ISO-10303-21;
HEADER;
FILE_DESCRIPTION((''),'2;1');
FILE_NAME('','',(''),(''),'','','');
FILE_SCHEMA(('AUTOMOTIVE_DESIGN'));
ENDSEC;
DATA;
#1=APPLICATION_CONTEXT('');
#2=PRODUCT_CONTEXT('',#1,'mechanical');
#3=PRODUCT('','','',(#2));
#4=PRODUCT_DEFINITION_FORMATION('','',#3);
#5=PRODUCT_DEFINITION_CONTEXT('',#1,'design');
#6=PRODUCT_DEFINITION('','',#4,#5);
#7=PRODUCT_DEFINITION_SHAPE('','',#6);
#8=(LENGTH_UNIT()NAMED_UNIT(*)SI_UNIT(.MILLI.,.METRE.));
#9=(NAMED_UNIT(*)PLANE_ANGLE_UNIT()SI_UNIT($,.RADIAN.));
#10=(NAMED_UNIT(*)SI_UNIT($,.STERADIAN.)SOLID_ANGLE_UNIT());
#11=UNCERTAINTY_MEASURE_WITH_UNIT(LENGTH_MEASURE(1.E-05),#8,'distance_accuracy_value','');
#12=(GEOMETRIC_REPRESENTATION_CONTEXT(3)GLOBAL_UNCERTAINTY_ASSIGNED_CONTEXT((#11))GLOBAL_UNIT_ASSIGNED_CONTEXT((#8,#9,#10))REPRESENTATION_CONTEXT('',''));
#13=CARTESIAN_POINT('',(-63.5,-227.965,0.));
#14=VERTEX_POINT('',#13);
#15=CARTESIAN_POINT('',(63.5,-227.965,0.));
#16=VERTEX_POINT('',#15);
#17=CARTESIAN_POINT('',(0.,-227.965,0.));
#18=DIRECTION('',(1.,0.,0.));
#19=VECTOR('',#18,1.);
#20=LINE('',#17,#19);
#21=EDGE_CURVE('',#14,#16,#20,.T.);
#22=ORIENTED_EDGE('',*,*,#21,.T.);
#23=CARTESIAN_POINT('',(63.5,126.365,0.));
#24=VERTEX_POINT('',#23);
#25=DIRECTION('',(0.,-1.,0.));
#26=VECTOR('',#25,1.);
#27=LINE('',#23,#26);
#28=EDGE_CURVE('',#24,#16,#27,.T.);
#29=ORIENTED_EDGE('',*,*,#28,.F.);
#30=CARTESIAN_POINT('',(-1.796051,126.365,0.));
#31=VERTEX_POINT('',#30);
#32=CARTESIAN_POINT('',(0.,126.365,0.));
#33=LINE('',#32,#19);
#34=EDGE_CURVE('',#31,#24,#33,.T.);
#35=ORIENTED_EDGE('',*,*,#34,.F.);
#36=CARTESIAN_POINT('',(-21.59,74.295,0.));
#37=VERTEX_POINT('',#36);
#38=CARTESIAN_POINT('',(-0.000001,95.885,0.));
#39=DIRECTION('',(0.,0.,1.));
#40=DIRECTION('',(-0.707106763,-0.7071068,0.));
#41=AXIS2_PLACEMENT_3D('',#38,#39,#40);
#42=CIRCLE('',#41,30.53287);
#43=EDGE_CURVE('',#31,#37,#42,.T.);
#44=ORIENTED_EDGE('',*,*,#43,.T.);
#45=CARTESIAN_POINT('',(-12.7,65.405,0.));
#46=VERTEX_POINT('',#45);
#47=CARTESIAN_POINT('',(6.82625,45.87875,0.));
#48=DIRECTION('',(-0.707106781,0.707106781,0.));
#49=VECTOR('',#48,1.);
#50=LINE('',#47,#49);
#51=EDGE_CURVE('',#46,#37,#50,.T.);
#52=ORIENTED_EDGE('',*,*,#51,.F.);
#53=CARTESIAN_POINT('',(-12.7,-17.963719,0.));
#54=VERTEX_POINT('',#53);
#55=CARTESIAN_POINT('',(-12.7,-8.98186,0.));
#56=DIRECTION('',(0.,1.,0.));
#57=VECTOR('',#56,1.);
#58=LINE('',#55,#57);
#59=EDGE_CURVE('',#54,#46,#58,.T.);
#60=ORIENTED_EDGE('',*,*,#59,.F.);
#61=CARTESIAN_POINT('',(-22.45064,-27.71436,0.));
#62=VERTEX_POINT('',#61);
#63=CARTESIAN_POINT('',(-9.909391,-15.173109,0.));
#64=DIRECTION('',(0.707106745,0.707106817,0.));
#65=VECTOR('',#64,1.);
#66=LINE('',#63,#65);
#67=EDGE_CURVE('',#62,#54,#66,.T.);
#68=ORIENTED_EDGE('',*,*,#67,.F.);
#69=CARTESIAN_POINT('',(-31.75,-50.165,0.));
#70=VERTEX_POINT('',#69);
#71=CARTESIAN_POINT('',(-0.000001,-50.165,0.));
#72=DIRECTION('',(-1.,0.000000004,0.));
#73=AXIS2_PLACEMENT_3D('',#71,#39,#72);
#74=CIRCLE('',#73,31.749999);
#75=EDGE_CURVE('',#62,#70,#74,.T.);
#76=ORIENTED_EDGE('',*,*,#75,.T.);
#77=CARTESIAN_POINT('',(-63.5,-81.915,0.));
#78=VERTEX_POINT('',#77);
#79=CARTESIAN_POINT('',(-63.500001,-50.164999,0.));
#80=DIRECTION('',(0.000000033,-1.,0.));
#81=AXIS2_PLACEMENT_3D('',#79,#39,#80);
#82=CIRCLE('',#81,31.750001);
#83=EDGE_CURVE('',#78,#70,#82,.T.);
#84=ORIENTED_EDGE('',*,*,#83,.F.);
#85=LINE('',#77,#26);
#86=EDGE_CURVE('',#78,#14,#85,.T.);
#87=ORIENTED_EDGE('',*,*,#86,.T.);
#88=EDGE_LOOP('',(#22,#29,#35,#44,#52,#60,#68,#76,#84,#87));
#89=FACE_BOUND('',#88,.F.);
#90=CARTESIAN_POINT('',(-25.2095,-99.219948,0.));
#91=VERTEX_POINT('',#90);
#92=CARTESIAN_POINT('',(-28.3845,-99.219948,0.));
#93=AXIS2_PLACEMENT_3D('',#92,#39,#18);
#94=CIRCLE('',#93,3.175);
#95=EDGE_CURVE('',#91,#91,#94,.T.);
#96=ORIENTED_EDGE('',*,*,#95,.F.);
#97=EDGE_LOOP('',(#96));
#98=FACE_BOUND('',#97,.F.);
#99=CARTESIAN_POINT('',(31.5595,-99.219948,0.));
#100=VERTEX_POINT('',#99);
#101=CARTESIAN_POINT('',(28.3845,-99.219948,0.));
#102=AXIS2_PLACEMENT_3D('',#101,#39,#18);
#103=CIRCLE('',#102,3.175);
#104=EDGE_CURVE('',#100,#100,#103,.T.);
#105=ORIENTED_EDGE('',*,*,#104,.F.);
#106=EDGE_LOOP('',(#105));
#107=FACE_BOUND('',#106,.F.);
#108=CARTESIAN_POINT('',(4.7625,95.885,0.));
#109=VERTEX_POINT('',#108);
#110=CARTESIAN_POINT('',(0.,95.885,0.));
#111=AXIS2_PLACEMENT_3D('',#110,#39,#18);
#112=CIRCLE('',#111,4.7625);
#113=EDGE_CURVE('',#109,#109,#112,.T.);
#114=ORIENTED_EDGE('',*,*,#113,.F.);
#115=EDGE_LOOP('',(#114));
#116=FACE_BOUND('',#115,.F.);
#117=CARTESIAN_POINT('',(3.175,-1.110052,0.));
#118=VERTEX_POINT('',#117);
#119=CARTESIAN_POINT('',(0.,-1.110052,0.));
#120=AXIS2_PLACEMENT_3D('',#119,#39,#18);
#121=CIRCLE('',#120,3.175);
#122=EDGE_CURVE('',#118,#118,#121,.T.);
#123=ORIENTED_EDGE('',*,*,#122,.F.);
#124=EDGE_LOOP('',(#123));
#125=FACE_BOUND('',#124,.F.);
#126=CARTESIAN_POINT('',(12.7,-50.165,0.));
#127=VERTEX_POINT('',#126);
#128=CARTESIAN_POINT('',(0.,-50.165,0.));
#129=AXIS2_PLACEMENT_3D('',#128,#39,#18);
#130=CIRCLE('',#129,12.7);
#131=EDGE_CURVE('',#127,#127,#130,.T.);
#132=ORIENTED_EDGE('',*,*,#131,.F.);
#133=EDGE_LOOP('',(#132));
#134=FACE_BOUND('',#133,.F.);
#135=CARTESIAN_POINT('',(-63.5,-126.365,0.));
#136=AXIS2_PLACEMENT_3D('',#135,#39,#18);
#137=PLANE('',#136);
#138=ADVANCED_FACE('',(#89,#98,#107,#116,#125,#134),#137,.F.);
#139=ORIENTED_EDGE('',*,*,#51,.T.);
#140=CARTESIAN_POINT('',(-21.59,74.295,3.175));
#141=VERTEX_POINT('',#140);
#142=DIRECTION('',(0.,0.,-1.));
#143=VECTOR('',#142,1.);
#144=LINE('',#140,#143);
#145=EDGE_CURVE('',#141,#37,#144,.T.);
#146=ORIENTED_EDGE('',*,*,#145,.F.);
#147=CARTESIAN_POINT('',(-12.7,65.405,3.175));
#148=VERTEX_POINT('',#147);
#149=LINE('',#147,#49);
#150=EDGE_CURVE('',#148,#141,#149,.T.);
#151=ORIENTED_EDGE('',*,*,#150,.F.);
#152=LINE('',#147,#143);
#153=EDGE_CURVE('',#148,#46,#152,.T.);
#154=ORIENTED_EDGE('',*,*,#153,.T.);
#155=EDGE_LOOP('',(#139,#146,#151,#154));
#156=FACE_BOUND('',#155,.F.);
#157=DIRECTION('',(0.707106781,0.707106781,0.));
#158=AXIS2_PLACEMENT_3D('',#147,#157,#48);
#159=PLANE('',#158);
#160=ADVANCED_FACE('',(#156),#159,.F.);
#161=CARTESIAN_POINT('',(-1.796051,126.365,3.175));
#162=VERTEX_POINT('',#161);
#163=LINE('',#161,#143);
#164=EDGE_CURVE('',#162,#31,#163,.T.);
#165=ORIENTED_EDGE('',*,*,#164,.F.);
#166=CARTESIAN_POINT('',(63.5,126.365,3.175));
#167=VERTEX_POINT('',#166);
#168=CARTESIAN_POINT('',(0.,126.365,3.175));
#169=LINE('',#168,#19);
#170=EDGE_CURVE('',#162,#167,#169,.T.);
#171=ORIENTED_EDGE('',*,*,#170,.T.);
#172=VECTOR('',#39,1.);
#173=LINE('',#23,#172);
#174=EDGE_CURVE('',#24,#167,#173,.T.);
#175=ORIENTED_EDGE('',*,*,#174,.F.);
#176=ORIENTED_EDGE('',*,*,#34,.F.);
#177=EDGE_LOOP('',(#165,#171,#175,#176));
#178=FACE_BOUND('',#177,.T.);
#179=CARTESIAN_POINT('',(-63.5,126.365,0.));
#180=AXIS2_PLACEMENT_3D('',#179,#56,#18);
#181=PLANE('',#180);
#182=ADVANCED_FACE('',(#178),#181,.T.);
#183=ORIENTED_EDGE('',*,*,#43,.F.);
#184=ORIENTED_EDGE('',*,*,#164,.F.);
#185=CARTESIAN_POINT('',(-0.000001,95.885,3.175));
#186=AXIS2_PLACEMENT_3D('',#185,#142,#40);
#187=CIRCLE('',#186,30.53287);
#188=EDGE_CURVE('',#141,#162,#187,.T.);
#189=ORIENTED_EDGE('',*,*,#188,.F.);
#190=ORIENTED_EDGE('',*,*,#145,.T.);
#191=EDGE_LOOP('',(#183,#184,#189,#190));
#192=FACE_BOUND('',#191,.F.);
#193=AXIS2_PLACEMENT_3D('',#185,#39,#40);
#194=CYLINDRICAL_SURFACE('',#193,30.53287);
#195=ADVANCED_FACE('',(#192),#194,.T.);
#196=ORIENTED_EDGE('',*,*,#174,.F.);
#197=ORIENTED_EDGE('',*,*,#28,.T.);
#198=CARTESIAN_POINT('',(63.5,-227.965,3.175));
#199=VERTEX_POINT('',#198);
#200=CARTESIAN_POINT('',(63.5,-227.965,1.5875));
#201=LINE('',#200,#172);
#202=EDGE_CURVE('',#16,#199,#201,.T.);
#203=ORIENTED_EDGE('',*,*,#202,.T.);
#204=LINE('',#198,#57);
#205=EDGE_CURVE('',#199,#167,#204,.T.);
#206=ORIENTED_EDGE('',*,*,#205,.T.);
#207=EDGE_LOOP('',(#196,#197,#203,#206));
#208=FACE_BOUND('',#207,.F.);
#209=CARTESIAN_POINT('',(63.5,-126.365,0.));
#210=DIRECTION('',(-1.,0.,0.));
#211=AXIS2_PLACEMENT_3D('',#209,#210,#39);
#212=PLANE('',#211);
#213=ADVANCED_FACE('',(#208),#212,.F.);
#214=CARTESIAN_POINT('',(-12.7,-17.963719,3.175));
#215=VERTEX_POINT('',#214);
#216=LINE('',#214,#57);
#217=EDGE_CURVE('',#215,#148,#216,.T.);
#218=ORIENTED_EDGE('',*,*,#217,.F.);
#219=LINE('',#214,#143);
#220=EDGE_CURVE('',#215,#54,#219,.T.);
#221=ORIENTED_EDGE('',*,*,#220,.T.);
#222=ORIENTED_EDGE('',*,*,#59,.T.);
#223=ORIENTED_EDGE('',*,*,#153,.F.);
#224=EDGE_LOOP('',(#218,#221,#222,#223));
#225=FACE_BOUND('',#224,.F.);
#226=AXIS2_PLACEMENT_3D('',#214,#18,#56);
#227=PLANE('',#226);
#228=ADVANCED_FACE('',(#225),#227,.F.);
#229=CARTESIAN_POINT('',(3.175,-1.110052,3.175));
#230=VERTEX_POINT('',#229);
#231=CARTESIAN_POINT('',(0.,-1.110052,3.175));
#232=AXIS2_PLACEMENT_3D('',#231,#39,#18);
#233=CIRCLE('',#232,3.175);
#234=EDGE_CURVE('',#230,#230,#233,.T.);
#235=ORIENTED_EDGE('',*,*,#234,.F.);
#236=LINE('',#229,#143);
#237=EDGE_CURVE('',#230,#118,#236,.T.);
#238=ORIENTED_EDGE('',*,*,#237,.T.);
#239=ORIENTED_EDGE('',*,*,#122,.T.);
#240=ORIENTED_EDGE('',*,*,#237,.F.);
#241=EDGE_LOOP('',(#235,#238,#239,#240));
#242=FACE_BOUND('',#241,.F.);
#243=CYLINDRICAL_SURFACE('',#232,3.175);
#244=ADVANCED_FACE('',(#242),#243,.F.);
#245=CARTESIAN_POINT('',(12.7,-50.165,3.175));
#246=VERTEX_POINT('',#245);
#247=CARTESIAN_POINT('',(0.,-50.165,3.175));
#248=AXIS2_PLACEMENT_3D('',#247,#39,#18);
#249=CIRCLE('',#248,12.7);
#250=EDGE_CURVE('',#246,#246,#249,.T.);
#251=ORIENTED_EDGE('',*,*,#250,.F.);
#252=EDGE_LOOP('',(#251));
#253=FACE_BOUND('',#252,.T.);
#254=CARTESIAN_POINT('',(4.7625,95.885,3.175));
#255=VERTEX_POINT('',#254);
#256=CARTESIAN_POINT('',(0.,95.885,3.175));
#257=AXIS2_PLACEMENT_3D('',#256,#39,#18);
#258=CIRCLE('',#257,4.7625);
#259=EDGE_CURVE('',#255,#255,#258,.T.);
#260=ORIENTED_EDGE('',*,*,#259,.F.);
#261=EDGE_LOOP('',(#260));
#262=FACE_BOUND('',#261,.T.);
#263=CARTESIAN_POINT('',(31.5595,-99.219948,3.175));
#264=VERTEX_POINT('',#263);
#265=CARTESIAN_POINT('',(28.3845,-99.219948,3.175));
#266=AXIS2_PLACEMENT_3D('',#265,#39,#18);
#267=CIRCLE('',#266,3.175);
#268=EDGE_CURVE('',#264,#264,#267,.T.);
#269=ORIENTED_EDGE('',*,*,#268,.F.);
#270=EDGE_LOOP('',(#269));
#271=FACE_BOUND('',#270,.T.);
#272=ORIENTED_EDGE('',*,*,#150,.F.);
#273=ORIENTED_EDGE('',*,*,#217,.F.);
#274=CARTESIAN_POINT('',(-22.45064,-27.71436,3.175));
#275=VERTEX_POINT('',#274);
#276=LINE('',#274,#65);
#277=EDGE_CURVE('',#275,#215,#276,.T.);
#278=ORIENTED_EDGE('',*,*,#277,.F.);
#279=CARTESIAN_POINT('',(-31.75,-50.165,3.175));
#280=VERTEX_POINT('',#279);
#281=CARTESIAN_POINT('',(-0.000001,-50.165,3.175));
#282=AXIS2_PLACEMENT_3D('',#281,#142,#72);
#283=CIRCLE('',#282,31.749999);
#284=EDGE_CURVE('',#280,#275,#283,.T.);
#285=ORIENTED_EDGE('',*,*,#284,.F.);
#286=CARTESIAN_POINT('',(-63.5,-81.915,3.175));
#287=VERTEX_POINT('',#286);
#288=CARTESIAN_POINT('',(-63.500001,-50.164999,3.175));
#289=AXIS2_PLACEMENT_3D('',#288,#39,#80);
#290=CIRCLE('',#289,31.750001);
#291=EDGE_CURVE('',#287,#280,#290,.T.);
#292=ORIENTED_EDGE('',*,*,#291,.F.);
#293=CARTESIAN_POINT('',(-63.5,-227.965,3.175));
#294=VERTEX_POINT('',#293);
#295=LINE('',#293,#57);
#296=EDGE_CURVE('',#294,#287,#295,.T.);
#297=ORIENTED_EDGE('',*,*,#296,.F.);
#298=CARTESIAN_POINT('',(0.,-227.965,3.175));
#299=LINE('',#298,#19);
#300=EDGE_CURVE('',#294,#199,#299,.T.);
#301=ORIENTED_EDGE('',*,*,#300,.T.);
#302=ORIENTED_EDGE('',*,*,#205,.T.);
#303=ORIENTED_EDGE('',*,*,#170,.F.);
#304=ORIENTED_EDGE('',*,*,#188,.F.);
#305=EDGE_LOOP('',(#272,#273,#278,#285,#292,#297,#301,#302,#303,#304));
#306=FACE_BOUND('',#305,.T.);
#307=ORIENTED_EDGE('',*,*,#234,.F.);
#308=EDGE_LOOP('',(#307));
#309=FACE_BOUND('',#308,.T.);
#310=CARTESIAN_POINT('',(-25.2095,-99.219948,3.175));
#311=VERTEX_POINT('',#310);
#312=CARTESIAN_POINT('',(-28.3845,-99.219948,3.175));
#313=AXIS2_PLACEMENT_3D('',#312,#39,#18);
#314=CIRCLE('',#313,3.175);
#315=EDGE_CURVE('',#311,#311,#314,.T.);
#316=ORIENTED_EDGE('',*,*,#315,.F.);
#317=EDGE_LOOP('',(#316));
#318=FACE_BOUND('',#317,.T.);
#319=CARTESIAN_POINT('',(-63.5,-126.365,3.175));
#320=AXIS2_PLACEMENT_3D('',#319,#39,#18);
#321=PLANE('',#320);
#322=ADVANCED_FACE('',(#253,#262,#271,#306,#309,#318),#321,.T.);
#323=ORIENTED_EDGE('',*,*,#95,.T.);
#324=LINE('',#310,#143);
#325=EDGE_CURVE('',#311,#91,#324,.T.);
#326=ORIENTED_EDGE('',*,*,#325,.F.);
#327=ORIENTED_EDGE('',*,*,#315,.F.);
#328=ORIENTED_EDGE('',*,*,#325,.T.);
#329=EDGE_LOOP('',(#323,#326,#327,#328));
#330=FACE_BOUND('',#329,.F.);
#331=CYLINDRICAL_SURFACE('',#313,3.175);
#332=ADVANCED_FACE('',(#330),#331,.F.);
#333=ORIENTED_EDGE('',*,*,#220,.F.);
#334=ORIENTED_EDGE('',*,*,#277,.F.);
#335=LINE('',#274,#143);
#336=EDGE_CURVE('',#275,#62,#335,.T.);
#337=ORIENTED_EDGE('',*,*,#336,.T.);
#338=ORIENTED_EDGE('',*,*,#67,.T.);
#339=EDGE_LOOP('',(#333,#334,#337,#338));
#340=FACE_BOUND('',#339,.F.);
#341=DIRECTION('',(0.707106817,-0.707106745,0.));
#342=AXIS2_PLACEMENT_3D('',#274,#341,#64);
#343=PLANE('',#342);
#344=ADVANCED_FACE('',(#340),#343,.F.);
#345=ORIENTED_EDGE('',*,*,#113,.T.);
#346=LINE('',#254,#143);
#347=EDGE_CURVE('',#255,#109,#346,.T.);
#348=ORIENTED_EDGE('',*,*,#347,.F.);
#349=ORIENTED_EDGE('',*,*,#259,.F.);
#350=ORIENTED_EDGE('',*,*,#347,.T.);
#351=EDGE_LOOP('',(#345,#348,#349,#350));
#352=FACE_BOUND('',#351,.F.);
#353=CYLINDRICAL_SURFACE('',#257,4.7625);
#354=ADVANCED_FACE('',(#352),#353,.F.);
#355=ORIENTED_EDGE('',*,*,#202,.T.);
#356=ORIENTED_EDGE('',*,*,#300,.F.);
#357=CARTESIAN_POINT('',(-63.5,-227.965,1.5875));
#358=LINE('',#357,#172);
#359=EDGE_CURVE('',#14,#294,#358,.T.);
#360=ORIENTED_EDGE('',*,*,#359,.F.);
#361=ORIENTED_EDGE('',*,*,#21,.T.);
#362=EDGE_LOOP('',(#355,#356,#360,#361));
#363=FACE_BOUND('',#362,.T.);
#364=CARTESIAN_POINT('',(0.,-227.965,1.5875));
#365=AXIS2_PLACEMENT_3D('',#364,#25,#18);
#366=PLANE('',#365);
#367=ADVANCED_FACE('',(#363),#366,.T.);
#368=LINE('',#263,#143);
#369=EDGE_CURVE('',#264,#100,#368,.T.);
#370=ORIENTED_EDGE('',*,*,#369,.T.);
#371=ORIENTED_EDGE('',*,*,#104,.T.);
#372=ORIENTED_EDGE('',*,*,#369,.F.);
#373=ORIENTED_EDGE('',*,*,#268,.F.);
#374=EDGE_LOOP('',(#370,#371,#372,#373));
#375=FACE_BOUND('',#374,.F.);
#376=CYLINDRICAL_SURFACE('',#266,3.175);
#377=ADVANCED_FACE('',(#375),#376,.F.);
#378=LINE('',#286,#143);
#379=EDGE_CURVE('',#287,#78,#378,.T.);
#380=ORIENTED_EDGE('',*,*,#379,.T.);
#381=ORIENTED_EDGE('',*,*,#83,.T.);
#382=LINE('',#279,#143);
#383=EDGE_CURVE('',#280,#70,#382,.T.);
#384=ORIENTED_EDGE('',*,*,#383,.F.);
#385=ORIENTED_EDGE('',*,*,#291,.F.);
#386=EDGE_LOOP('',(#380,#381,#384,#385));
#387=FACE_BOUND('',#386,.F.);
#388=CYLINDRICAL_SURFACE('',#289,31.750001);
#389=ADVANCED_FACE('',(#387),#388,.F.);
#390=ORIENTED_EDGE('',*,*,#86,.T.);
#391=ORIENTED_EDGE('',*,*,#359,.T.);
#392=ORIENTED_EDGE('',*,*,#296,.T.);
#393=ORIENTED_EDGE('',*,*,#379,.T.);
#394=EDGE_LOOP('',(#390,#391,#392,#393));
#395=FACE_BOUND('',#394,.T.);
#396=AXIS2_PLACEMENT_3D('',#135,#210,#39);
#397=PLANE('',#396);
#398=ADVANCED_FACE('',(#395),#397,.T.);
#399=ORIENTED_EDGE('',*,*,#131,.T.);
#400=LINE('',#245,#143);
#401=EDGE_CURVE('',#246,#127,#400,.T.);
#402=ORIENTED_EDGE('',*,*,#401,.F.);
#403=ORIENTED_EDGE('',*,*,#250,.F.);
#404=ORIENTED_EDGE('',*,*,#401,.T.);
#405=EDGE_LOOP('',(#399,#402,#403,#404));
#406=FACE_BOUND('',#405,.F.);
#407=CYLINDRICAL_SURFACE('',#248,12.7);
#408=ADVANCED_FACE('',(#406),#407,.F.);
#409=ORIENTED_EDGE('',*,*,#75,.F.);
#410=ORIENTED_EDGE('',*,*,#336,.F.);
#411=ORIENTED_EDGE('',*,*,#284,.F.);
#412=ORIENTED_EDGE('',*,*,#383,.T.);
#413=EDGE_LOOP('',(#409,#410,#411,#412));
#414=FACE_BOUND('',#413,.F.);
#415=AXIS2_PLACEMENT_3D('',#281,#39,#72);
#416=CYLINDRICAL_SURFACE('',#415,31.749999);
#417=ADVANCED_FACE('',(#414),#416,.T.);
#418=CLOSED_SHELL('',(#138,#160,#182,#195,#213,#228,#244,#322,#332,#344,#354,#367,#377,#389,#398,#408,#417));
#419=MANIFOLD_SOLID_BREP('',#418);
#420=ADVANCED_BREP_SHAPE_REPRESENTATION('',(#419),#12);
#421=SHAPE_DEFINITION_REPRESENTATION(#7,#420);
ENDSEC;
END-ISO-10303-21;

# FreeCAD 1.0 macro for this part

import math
import FreeCAD as App
import Part
import Sketcher

V = App.Vector
Q = App.Units.Quantity


def add_polygon(sketch, points):
    """Adds a closed chain of lines whose ends are joined by coincident constraints."""
    first, n = sketch.GeometryCount, len(points)
    for a, b in zip(points, points[1:] + points[:1]):
        sketch.addGeometry(Part.LineSegment(App.Vector(*a, 0), App.Vector(*b, 0)), False)
    for i in range(n):
        sketch.addConstraint(Sketcher.Constraint("Coincident", first + i, 2, first + (i + 1) % n, 1))

doc = App.newDocument("Part")
body = doc.addObject("PartDesign::Body", "Body")

# Sketch on XY plane
sketch1 = body.newObject("Sketcher::SketchObject", "Sketch")
sketch1.AttachmentSupport = (doc.getObject("XY_Plane"), [""])
sketch1.MapMode = "FlatFace"
add_polygon(sketch1, [(-63.5, 126.365), (-63.5, -126.365), (63.5, -126.365), (63.5, 126.365)])  # lines 0-3
sketch1.addConstraint(Sketcher.Constraint("Vertical", 0))
sketch1.addConstraint(Sketcher.Constraint("Horizontal", 1))
sketch1.addConstraint(Sketcher.Constraint("Vertical", 2))
sketch1.addConstraint(Sketcher.Constraint("Horizontal", 3))
sketch1.addConstraint(Sketcher.Constraint("Symmetric", 0, 2, 2, 2, -1, 1))
sketch1.addConstraint(Sketcher.Constraint("DistanceX", 1, 1, 1, 2, Q("5 in")))
sketch1.addConstraint(Sketcher.Constraint("DistanceY", 0, 2, 0, 1, Q("9.95 in")))
pad1 = body.newObject("PartDesign::Pad", "Pad")
pad1.Profile = sketch1
pad1.Length = Q("0.125 in")

# Sketch on XY plane
sketch2 = body.newObject("Sketcher::SketchObject", "Sketch001")
sketch2.AttachmentSupport = (doc.getObject("XY_Plane"), [""])
sketch2.MapMode = "FlatFace"
sketch2.AttachmentOffset = App.Placement(V(0, 0, 0.125 * 25.4), App.Rotation())
sketch2.addGeometry(Part.LineSegment(V(-12.7, 65.405, 0), V(-21.59, 74.295, 0)), False)
sketch2.addGeometry(Part.ArcOfCircle(Part.Circle(V(-0.000001, 95.885, 0), V(0, 0, 1), 30.53287), math.radians(93.372285), math.radians(225.000001)), False)
sketch2.addGeometry(Part.LineSegment(V(-1.796051, 126.365, 0), V(-63.5, 126.365, 0)), False)
sketch2.addGeometry(Part.LineSegment(V(-63.5, 126.365, 0), V(-63.5, -81.915, 0)), False)
sketch2.addGeometry(Part.ArcOfCircle(Part.Circle(V(-63.500001, -50.164999, 0), V(0, 0, 1), 31.750001), math.radians(-89.999998), math.radians(-0.000002)), False)
sketch2.addGeometry(Part.ArcOfCircle(Part.Circle(V(-0.000001, -50.165, 0), V(0, 0, 1), 31.749999), math.radians(134.999998), math.radians(180)), False)
sketch2.addGeometry(Part.LineSegment(V(-22.45064, -27.71436, 0), V(-12.7, -17.963719, 0)), False)
sketch2.addGeometry(Part.LineSegment(V(-12.7, -17.963719, 0), V(-12.7, 65.405, 0)), False)
sketch2.addGeometry(Part.Circle(V(0, -50.165, 0), V(0, 0, 1), 12.7), False)
sketch2.addGeometry(Part.Circle(V(28.3845, -99.219948, 0), V(0, 0, 1), 3.175), False)
sketch2.addGeometry(Part.Circle(V(-28.3845, -99.219948, 0), V(0, 0, 1), 3.175), False)
sketch2.addGeometry(Part.Circle(V(0, -1.110052, 0), V(0, 0, 1), 3.175), False)
sketch2.addGeometry(Part.Circle(V(0, 95.885, 0), V(0, 0, 1), 4.7625), False)
sketch2.addConstraint(Sketcher.Constraint("Tangent", 0, 2, 1, 2))
sketch2.addConstraint(Sketcher.Constraint("Coincident", 1, 1, 2, 1))
sketch2.addConstraint(Sketcher.Constraint("Coincident", 2, 2, 3, 1))
sketch2.addConstraint(Sketcher.Constraint("Coincident", 3, 2, 4, 1))
sketch2.addConstraint(Sketcher.Constraint("Tangent", 4, 2, 5, 2))
sketch2.addConstraint(Sketcher.Constraint("Tangent", 5, 1, 6, 1))
sketch2.addConstraint(Sketcher.Constraint("Coincident", 6, 2, 7, 1))
sketch2.addConstraint(Sketcher.Constraint("Coincident", 7, 2, 0, 1))
sketch2.addConstraint(Sketcher.Constraint("Horizontal", 2))
sketch2.addConstraint(Sketcher.Constraint("Vertical", 3))
sketch2.addConstraint(Sketcher.Constraint("Vertical", 7))
sketch2.addConstraint(Sketcher.Constraint("Coincident", 8, 3, 5, 3))
sketch2.addConstraint(Sketcher.Constraint("Coincident", 12, 3, 1, 3))
sketch2.addConstraint(Sketcher.Constraint("Equal", 9, 10))
sketch2.addConstraint(Sketcher.Constraint("Equal", 10, 11))
sketch2.addConstraint(Sketcher.Constraint("Symmetric", 9, 3, 10, 3, -2))
sketch2.addConstraint(Sketcher.Constraint("PointOnObject", 1, 3, -2))
sketch2.addConstraint(Sketcher.Constraint("PointOnObject", 5, 3, -2))
sketch2.addConstraint(Sketcher.Constraint("PointOnObject", 11, 3, -2))
sketch2.addConstraint(Sketcher.Constraint("Perpendicular", 0, 6))
sketch2.addConstraint(Sketcher.Constraint("Horizontal", 4, 3, 5, 3))
sketch2.addConstraint(Sketcher.Constraint("Vertical", 4, 3, 2, 2))
sketch2.addConstraint(Sketcher.Constraint("Diameter", 8, Q("1 in")))
sketch2.addConstraint(Sketcher.Constraint("Diameter", 9, Q("0.25 in")))
sketch2.addConstraint(Sketcher.Constraint("Radius", 4, Q("1.25 in")))
sketch2.addConstraint(Sketcher.Constraint("Radius", 5, Q("1.25 in")))
sketch2.addConstraint(Sketcher.Constraint("Diameter", 12, Q("0.375 in")))
sketch2.addConstraint(Sketcher.Constraint("DistanceY", 3, 2, 3, 1, Q("8.2 in")))
sketch2.addConstraint(Sketcher.Constraint("Angle", 0, Q("135 deg")))
sketch2.addConstraint(Sketcher.Constraint("DistanceX", 6, 2, -1, 1, Q("0.5 in")))
sketch2.addConstraint(Sketcher.Constraint("DistanceY", 5, 3, 0, 2, Q("4.9 in")))
sketch2.addConstraint(Sketcher.Constraint("DistanceY", 1, 3, 1, 1, Q("1.2 in")))
sketch2.addConstraint(Sketcher.Constraint("DistanceY", -1, 1, 1, 3, Q("3.775 in")))
sketch2.addConstraint(Sketcher.Constraint("DistanceX", 10, 3, 9, 3, Q("2.235 in")))
sketch2.addConstraint(Sketcher.Constraint("DistanceY", 9, 3, -1, 1, 99.219948))
sketch2.addConstraint(Sketcher.Constraint("DistanceY", 5, 3, 11, 3, 49.054948))
pocket1 = body.newObject("PartDesign::Pocket", "Pocket")
pocket1.Profile = sketch2
pocket1.Type = "ThroughAll"

# Sketch on XZ plane
sketch3 = body.newObject("Sketcher::SketchObject", "Sketch002")
sketch3.AttachmentSupport = (doc.getObject("XZ_Plane"), [""])
sketch3.MapMode = "FlatFace"
sketch3.AttachmentOffset = App.Placement(V(0, 0, 4.975 * 25.4), App.Rotation())
add_polygon(sketch3, [(-63.5, 3.175), (-63.5, 0), (63.5, 0), (63.5, 3.175)])  # lines 0-3
sketch3.addConstraint(Sketcher.Constraint("Vertical", 0))
sketch3.addConstraint(Sketcher.Constraint("Horizontal", 1))
sketch3.addConstraint(Sketcher.Constraint("Vertical", 2))
sketch3.addConstraint(Sketcher.Constraint("Horizontal", 3))
sketch3.addConstraint(Sketcher.Constraint("Symmetric", 0, 2, 1, 2, -1, 1))
sketch3.addConstraint(Sketcher.Constraint("DistanceX", 1, 1, 1, 2, Q("5 in")))
sketch3.addConstraint(Sketcher.Constraint("DistanceY", 0, 2, 0, 1, Q("0.125 in")))
pad2 = body.newObject("PartDesign::Pad", "Pad001")
pad2.Profile = sketch3
pad2.Length = Q("4 in")

doc.recompute()
